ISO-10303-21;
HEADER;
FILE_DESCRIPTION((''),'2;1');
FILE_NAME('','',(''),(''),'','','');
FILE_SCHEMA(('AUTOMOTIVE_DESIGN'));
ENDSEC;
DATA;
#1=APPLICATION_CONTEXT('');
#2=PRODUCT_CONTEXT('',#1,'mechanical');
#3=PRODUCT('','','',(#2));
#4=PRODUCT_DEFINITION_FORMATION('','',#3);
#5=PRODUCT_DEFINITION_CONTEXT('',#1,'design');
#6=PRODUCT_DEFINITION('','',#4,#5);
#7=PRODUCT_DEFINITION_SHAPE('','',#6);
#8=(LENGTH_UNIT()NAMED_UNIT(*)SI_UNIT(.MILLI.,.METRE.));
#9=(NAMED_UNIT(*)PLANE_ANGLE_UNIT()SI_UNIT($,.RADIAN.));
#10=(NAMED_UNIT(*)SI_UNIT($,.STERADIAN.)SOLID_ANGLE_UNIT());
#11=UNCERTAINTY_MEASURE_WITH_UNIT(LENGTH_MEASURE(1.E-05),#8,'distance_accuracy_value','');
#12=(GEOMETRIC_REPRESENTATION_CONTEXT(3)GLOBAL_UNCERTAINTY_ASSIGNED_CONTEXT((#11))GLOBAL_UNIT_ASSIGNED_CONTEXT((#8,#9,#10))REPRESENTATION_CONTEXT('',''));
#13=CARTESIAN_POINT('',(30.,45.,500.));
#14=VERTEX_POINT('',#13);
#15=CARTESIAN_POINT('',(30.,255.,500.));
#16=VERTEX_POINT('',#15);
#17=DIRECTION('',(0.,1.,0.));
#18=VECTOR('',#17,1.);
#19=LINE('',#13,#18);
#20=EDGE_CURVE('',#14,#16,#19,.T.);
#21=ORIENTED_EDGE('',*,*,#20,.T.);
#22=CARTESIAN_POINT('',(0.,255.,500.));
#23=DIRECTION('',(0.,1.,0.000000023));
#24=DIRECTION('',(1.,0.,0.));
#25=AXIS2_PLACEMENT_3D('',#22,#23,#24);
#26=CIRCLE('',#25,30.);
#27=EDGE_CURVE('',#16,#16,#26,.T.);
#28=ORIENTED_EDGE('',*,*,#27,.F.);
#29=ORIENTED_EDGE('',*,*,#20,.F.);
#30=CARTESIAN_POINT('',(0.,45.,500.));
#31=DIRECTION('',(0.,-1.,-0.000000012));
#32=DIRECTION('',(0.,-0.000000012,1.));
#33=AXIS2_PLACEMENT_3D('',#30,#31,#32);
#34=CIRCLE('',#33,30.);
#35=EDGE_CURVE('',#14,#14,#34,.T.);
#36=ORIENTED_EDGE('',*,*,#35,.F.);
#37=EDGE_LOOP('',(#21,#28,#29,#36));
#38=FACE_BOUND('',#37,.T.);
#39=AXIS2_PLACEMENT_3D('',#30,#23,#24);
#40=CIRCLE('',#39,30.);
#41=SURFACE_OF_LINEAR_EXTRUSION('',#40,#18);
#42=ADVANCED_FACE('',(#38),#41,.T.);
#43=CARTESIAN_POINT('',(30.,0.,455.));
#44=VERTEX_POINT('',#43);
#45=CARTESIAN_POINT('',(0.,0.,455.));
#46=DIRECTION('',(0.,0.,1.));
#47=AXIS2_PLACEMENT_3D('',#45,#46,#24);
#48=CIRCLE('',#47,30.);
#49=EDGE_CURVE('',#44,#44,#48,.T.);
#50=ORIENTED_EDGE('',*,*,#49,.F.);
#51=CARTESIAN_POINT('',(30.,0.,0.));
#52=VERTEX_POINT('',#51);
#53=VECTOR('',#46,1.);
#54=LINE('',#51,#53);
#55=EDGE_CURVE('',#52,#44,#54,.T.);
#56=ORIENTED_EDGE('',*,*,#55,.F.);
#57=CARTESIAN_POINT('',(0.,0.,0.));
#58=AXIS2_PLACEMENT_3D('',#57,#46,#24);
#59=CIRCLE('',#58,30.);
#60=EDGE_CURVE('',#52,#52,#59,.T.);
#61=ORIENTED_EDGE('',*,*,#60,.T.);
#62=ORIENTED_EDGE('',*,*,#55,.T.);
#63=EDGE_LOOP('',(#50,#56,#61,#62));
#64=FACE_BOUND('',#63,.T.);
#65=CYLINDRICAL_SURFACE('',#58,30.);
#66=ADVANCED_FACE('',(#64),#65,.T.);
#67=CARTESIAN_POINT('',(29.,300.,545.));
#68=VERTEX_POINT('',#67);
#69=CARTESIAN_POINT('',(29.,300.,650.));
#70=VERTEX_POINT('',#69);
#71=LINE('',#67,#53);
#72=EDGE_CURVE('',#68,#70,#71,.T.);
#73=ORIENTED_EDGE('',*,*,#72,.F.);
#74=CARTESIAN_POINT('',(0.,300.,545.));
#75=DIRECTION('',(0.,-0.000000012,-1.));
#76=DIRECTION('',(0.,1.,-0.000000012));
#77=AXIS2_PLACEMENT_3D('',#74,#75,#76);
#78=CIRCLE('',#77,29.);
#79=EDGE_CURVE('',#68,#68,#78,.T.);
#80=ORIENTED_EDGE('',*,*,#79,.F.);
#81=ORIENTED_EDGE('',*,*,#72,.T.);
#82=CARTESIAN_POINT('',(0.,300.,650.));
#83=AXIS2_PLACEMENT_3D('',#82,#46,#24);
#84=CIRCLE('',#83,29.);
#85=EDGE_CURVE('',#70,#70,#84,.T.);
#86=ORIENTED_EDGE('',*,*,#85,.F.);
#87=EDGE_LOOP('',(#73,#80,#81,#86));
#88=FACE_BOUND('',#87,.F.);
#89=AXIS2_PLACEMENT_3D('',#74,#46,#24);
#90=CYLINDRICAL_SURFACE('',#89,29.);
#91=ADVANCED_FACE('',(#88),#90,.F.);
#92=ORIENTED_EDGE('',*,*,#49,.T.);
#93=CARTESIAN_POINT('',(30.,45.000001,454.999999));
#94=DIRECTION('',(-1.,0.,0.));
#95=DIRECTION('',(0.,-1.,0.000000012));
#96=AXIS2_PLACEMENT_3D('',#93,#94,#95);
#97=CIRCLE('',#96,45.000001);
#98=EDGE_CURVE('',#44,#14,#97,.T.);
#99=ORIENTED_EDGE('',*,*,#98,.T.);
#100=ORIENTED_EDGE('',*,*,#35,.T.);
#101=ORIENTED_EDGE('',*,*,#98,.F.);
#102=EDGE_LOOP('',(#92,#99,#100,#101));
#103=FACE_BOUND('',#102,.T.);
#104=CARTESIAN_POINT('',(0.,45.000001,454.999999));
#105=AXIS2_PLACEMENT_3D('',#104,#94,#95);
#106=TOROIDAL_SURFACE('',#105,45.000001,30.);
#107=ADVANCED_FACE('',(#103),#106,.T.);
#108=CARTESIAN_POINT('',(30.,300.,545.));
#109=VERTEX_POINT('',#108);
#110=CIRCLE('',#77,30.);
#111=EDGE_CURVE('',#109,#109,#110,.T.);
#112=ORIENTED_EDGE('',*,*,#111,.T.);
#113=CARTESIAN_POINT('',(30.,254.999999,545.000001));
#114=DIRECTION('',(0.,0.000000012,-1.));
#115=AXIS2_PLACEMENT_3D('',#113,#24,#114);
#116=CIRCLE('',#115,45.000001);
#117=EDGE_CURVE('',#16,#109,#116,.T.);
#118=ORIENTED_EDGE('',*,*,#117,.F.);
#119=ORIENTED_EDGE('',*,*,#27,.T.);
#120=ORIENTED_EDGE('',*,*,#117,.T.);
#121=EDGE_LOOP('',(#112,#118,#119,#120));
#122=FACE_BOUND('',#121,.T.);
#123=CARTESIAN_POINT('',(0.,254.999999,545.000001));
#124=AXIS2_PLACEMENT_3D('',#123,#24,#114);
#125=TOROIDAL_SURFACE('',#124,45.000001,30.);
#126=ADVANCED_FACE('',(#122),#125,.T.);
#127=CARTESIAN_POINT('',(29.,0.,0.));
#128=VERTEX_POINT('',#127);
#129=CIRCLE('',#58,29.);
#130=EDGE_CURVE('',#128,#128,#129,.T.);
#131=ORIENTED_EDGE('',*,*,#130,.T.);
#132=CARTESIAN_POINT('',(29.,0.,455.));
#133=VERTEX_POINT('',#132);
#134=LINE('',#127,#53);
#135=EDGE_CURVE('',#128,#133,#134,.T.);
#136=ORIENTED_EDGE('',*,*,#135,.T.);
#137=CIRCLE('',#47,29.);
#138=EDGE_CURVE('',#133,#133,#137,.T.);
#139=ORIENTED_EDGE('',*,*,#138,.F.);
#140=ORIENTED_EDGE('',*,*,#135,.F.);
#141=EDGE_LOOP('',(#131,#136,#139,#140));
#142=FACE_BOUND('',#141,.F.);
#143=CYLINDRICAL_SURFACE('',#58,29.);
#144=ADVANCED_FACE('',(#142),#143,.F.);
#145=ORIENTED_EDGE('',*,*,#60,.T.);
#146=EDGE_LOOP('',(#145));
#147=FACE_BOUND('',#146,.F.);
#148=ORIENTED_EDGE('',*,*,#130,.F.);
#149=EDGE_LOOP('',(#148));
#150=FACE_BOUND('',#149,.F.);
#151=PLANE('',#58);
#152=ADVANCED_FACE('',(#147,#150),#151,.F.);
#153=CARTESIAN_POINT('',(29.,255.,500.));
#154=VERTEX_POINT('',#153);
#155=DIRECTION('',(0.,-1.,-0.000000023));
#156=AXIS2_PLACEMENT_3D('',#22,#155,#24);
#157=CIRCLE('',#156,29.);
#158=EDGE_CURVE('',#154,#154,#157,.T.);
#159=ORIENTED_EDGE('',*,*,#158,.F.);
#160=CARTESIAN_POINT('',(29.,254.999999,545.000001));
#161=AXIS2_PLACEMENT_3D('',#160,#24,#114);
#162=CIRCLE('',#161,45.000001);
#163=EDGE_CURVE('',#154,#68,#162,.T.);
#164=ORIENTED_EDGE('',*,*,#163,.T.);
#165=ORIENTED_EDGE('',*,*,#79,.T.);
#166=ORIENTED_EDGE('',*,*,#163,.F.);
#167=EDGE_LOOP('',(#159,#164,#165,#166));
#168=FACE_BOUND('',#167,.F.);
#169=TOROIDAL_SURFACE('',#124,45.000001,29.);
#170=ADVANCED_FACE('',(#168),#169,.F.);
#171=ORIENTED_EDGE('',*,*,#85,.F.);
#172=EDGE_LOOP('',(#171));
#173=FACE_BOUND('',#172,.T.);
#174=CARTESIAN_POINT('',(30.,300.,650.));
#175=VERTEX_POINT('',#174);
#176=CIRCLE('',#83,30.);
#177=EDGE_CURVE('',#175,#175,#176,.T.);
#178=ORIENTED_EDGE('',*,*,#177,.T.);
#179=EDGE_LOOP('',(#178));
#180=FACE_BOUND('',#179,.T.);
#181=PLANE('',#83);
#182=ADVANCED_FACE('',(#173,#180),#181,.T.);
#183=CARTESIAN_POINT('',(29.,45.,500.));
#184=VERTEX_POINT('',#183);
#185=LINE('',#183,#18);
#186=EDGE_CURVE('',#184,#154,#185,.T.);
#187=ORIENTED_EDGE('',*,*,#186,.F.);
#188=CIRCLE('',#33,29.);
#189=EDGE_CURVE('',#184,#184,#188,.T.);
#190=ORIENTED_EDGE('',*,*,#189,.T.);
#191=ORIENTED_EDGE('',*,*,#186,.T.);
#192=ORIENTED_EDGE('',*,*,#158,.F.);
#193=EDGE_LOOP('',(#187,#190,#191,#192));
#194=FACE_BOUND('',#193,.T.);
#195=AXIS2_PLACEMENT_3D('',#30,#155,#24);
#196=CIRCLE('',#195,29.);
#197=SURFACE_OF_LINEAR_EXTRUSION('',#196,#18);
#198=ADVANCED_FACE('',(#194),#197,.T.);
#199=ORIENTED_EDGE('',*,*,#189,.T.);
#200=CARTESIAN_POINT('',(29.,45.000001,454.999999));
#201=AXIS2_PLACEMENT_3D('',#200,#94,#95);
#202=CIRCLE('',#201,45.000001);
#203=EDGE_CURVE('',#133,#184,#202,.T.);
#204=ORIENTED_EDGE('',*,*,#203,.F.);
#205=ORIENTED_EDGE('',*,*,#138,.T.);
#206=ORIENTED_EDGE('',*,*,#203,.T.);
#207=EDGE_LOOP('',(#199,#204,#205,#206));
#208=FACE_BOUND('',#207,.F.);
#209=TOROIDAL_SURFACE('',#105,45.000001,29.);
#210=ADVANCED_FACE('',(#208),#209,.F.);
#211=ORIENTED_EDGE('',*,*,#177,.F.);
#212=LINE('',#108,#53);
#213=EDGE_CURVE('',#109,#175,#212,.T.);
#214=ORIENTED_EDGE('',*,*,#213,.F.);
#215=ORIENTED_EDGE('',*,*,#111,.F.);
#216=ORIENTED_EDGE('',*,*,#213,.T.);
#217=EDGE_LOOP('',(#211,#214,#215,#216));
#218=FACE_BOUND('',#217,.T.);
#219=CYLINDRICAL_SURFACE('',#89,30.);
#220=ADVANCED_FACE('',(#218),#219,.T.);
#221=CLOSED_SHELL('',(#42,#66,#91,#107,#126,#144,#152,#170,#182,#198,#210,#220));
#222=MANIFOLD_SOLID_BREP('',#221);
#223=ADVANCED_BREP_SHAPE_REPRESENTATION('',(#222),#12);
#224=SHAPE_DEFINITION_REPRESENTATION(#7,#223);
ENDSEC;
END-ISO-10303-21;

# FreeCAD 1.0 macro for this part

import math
import FreeCAD as App
import Part
import Sketcher
from FreeCAD import Vector
Q = App.Units.Quantity

doc = App.newDocument("Part")
body = doc.addObject("PartDesign::Body", "Body")

# Sketch on XY plane
sketch1 = doc.addObject("Sketcher::SketchObject", "Sketch")
body.addObject(sketch1)
sketch1.AttachmentSupport = (doc.XY_Plane, [""])
sketch1.MapMode = "FlatFace"
sketch1.addGeometry(Part.Circle(Vector(0, 0, 0), Vector(0, 0, 1), 30), False)
sketch1.addGeometry(Part.Circle(Vector(0, 0, 0), Vector(0, 0, 1), 29), False)
sketch1.addConstraint(Sketcher.Constraint("Coincident", 0, 3, -1, 1))
sketch1.addConstraint(Sketcher.Constraint("Coincident", 1, 3, -1, 1))
sketch1.addConstraint(Sketcher.Constraint("Diameter", 0, Q("60 mm")))
sketch1.addConstraint(Sketcher.Constraint("Diameter", 1, Q("58 mm")))

# Sketch on YZ plane
sketch2 = doc.addObject("Sketcher::SketchObject", "Sketch001")
body.addObject(sketch2)
sketch2.AttachmentSupport = (doc.YZ_Plane, [""])
sketch2.MapMode = "FlatFace"
sketch2.addGeometry(Part.LineSegment(Vector(0, 0, 0), Vector(0, 455, 0)), False)
sketch2.addGeometry(Part.ArcOfCircle(Part.Circle(Vector(45.000001, 454.999999, 0), Vector(0, 0, 1), 45.000001), math.radians(90.000001), math.radians(179.999999)), False)
sketch2.addGeometry(Part.LineSegment(Vector(45, 500, 0), Vector(255, 500, 0)), False)
sketch2.addGeometry(Part.ArcOfCircle(Part.Circle(Vector(254.999999, 545.000001, 0), Vector(0, 0, 1), 45.000001), math.radians(-89.999999), math.radians(-0.000001)), False)
sketch2.addGeometry(Part.LineSegment(Vector(300, 545, 0), Vector(300, 650, 0)), False)
sketch2.addConstraint(Sketcher.Constraint("Tangent", 0, 2, 1, 2))
sketch2.addConstraint(Sketcher.Constraint("Tangent", 1, 1, 2, 1))
sketch2.addConstraint(Sketcher.Constraint("Tangent", 2, 2, 3, 1))
sketch2.addConstraint(Sketcher.Constraint("Tangent", 3, 2, 4, 1))
sketch2.addConstraint(Sketcher.Constraint("Vertical", 0))
sketch2.addConstraint(Sketcher.Constraint("Horizontal", 2))
sketch2.addConstraint(Sketcher.Constraint("Vertical", 4))
sketch2.addConstraint(Sketcher.Constraint("Coincident", 0, 1, -1, 1))
sketch2.addConstraint(Sketcher.Constraint("Equal", 1, 3))
sketch2.addConstraint(Sketcher.Constraint("Radius", 1, Q("45.000001 mm")))
sketch2.addConstraint(Sketcher.Constraint("DistanceX", 2, 1, 2, 2, Q("210 mm")))
sketch2.addConstraint(Sketcher.Constraint("DistanceY", 0, 1, 0, 2, Q("455 mm")))
sketch2.addConstraint(Sketcher.Constraint("DistanceY", 4, 1, 4, 2, Q("105 mm")))
doc.recompute()

additivepipe = doc.addObject("PartDesign::AdditivePipe", "AdditivePipe")
body.addObject(additivepipe)
additivepipe.Profile = sketch1
additivepipe.Spine = (sketch2, ["Edge1", "Edge2", "Edge3", "Edge4", "Edge5"])

doc.recompute()
